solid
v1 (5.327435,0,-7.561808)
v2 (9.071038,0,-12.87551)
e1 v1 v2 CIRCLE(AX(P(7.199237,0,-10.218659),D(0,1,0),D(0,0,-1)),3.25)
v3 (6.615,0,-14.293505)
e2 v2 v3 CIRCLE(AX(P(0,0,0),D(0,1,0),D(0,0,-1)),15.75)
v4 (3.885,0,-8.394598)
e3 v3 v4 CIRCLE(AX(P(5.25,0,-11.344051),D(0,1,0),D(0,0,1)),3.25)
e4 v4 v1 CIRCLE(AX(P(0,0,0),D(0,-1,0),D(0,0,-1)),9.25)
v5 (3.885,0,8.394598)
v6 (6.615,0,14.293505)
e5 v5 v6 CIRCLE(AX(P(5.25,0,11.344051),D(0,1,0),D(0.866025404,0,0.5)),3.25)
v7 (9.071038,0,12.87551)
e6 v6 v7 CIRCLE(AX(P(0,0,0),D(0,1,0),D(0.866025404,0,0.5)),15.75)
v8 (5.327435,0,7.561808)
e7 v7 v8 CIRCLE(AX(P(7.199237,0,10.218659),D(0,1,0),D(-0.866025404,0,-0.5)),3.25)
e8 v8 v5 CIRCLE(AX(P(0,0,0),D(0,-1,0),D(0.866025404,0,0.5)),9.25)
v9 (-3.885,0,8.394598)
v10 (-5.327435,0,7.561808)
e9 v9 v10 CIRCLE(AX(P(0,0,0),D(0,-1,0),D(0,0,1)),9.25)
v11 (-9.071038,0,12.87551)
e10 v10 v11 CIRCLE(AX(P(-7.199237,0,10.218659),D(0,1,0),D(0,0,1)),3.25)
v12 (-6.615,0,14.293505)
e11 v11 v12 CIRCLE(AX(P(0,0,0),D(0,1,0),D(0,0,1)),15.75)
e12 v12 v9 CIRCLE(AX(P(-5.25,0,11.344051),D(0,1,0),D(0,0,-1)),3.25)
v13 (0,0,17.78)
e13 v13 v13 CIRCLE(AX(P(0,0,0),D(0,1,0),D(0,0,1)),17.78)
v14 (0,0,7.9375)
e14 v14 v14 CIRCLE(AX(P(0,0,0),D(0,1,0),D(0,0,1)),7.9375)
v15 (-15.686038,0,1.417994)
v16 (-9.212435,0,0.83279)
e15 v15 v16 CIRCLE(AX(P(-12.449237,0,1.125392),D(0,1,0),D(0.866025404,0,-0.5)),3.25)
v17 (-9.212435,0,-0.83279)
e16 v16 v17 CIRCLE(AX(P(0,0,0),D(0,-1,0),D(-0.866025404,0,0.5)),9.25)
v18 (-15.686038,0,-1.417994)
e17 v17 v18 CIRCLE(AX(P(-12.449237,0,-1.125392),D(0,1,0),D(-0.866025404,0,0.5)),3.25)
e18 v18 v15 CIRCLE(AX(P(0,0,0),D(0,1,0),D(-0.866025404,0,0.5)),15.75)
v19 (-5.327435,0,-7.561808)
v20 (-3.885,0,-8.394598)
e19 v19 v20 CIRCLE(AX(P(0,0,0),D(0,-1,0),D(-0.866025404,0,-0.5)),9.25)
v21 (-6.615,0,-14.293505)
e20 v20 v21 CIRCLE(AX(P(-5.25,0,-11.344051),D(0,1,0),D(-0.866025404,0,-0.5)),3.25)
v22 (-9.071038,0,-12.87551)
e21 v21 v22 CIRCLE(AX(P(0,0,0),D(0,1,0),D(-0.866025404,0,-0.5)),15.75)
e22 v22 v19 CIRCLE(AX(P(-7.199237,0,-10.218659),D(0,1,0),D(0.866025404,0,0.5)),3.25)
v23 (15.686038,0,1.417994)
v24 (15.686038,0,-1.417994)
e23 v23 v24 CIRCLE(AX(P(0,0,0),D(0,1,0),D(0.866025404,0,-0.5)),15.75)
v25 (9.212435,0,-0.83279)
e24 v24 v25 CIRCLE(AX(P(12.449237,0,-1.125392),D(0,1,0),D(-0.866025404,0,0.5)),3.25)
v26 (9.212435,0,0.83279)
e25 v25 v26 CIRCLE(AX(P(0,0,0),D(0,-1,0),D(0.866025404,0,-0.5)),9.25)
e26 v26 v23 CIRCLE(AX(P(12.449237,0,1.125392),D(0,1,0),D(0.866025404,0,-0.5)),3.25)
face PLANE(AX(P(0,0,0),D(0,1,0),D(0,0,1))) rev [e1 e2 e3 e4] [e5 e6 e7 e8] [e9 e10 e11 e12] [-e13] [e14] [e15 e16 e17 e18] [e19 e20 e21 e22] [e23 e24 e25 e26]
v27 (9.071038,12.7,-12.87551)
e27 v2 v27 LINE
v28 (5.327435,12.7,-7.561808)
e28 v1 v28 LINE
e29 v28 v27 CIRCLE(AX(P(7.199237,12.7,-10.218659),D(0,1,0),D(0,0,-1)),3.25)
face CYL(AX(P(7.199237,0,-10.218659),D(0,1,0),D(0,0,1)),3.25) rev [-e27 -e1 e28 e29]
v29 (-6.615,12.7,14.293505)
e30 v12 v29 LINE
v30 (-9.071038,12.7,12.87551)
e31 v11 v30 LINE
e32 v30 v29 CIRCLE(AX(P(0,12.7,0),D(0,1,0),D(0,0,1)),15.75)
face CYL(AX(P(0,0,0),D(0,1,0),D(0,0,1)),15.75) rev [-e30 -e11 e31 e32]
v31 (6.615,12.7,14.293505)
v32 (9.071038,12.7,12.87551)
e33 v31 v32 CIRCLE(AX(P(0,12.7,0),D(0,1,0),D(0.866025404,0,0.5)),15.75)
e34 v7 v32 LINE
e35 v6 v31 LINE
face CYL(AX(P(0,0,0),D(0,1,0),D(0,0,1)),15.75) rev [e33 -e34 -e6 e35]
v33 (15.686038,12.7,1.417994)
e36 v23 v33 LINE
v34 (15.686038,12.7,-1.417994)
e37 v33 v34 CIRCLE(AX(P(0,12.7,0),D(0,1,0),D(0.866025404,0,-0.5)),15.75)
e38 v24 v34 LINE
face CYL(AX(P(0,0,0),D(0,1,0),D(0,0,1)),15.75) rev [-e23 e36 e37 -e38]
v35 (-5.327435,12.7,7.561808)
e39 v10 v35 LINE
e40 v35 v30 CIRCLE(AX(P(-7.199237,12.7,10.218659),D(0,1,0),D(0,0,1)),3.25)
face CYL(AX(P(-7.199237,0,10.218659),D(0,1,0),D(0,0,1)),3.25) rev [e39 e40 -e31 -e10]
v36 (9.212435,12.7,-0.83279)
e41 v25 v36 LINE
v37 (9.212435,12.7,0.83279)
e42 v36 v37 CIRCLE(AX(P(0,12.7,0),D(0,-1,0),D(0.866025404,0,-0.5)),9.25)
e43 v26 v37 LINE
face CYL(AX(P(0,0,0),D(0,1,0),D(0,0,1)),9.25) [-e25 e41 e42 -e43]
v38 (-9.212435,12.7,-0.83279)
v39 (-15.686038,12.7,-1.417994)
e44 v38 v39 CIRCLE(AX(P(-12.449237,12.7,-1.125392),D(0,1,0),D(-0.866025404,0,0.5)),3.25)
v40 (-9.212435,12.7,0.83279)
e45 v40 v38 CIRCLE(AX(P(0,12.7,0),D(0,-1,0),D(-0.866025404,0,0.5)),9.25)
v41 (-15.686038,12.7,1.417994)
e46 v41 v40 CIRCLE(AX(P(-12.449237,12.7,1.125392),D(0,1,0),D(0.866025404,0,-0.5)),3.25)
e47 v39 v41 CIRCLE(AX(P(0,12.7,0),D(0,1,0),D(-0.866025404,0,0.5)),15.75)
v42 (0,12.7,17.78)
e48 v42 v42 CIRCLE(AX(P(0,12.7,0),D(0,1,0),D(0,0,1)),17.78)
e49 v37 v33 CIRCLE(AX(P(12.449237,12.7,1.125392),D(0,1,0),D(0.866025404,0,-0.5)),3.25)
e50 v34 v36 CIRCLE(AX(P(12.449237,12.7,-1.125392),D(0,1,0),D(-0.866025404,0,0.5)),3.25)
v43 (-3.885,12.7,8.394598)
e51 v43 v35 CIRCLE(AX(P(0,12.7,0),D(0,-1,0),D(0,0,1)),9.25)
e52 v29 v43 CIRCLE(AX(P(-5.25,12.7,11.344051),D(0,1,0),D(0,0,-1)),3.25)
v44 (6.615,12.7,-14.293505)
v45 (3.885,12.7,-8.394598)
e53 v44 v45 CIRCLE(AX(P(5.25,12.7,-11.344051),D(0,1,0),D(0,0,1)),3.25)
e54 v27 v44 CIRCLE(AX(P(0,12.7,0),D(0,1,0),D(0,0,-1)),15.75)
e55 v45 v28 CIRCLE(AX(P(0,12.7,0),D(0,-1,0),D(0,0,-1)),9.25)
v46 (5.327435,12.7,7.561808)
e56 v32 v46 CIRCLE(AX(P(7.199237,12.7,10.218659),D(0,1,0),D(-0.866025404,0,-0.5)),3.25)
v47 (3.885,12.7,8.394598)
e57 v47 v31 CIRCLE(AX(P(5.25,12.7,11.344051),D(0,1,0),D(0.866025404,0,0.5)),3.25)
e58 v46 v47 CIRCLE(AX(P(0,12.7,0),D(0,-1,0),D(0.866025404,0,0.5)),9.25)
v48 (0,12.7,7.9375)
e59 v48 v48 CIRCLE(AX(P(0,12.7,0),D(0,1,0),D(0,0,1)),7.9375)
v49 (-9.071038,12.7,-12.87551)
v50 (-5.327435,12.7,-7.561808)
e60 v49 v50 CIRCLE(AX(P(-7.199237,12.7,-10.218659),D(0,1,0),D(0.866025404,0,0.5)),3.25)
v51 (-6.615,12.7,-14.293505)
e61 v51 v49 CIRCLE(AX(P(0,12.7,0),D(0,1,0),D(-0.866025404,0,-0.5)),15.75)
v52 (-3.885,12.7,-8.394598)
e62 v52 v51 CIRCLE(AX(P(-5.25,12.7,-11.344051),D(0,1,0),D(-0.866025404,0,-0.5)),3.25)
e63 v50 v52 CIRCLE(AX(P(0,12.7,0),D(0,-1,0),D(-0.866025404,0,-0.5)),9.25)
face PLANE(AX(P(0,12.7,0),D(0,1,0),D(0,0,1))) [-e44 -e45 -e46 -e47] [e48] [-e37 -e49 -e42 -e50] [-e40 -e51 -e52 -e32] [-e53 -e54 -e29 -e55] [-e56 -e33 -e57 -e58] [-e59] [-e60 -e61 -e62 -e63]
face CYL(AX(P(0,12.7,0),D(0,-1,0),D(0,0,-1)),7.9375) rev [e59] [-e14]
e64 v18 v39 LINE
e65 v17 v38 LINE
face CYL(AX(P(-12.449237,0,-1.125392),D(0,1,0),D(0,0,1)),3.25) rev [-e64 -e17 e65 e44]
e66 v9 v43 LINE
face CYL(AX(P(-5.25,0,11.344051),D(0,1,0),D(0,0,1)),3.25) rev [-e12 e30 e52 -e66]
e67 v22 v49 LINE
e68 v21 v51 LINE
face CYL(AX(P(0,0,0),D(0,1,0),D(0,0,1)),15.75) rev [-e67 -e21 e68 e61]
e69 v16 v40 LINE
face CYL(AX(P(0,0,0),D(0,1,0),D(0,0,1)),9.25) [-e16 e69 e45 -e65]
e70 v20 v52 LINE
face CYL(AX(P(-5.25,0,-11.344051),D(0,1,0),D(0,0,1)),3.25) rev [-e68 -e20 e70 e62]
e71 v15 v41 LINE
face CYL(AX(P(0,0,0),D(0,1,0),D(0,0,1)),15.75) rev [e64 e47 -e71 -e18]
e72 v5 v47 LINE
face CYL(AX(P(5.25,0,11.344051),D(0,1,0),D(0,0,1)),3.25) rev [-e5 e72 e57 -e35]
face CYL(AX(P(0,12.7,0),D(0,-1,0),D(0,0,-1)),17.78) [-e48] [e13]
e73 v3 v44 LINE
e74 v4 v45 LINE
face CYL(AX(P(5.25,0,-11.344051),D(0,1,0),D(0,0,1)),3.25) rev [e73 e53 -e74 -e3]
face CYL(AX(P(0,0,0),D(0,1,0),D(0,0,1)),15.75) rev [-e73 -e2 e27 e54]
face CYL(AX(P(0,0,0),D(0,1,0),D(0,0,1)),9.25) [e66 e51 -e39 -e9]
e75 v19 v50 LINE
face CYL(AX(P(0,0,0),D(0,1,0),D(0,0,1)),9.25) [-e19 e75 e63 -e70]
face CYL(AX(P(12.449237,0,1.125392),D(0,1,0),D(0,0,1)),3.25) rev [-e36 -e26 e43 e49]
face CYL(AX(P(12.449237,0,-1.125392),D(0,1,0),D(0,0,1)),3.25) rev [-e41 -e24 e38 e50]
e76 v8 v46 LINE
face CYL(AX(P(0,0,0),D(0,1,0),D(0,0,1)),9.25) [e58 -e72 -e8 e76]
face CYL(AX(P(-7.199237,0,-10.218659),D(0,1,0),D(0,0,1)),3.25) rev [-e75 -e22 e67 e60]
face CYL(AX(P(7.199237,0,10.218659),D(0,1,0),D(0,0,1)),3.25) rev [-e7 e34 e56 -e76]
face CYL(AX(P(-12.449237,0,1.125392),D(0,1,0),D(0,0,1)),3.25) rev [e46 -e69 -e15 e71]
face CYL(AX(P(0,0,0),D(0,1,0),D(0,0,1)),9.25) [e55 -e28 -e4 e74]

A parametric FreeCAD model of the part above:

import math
import FreeCAD as App
import Part
import Sketcher
Q = App.Units.Quantity

doc = App.newDocument("Part")
body = doc.addObject("PartDesign::Body", "Body")

# Sketch on XZ plane
sketch1 = body.newObject("Sketcher::SketchObject", "Sketch")
sketch1.AttachmentSupport = (doc.getObject("XZ_Plane"), [""])
sketch1.MapMode = "FlatFace"
sketch1.addGeometry([
    Part.Circle(App.Vector(0, 0, 0), App.Vector(0, 0, 1), 18),
    Part.Circle(App.Vector(0, 0, 0), App.Vector(0, 0, 1), 8),
], False)
sketch1.addConstraint([
    Sketcher.Constraint("Coincident", 0, 3, -1, 1),
    Sketcher.Constraint("Coincident", 1, 3, -1, 1),
    Sketcher.Constraint("Diameter", 0, Q("35.56 mm")),
    Sketcher.Constraint("Diameter", 1, Q("15.875 mm")),
])
pad1 = body.newObject("PartDesign::Pad", "Pad")
pad1.Profile = sketch1
pad1.Length = 12.7
pad1.Reversed = True

# Sketch on XZ plane
sketch2 = body.newObject("Sketcher::SketchObject", "Sketch001")
sketch2.AttachmentSupport = (doc.getObject("XZ_Plane"), [""])
sketch2.MapMode = "FlatFace"
sketch2.AttachmentOffset = App.Placement(App.Vector(0, 0, -12.7), App.Rotation())
sketch2.addGeometry([
    Part.ArcOfCircle(Part.Circle(App.Vector(0, 0, 0), App.Vector(0, 0, 1), 15.7), math.radians(-65.17), math.radians(-54.83)),
    Part.ArcOfCircle(Part.Circle(App.Vector(5.2, -11.3, 0), App.Vector(0, 0, 1), 3.2), math.radians(115), math.radians(295)),
    Part.ArcOfCircle(Part.Circle(App.Vector(0, 0, 0), App.Vector(0, 0, 1), 9.2), math.radians(-65.17), math.radians(-54.83)),
    Part.ArcOfCircle(Part.Circle(App.Vector(7.2, -10.2, 0), App.Vector(0, 0, 1), 3.2), math.radians(-55), math.radians(125)),
], False)
sketch2.addConstraint([
    Sketcher.Constraint("Tangent", 0, 1, 1, 2),
    Sketcher.Constraint("Tangent", 1, 1, 2, 1),
    Sketcher.Constraint("Tangent", 2, 2, 3, 2),
    Sketcher.Constraint("Tangent", 3, 1, 0, 2),
    Sketcher.Constraint("Coincident", 0, 3, -1, 1),
    Sketcher.Constraint("Coincident", 2, 3, -1, 1),
    Sketcher.Constraint("Radius", 0, Q("15.75 mm")),
    Sketcher.Constraint("Radius", 1, Q("3.25 mm")),
    Sketcher.Constraint("DistanceX", -1, 1, 1, 3, Q("5.25 mm")),
    Sketcher.Constraint("DistanceX", 2, 2, 3, 3, Q("1.871802 mm")),
])
pocket1 = body.newObject("PartDesign::Pocket", "Pocket")
pocket1.Profile = sketch2
pocket1.Type = "ThroughAll"
pocket1.Reversed = True
doc.recompute()

polarpattern = body.newObject("PartDesign::PolarPattern", "PolarPattern")
polarpattern.Originals = [pocket1]
polarpattern.Axis = (doc.getObject("Y_Axis"), [""])
polarpattern.Angle = 360
polarpattern.Occurrences = 6
body.Tip = polarpattern

doc.recompute()
